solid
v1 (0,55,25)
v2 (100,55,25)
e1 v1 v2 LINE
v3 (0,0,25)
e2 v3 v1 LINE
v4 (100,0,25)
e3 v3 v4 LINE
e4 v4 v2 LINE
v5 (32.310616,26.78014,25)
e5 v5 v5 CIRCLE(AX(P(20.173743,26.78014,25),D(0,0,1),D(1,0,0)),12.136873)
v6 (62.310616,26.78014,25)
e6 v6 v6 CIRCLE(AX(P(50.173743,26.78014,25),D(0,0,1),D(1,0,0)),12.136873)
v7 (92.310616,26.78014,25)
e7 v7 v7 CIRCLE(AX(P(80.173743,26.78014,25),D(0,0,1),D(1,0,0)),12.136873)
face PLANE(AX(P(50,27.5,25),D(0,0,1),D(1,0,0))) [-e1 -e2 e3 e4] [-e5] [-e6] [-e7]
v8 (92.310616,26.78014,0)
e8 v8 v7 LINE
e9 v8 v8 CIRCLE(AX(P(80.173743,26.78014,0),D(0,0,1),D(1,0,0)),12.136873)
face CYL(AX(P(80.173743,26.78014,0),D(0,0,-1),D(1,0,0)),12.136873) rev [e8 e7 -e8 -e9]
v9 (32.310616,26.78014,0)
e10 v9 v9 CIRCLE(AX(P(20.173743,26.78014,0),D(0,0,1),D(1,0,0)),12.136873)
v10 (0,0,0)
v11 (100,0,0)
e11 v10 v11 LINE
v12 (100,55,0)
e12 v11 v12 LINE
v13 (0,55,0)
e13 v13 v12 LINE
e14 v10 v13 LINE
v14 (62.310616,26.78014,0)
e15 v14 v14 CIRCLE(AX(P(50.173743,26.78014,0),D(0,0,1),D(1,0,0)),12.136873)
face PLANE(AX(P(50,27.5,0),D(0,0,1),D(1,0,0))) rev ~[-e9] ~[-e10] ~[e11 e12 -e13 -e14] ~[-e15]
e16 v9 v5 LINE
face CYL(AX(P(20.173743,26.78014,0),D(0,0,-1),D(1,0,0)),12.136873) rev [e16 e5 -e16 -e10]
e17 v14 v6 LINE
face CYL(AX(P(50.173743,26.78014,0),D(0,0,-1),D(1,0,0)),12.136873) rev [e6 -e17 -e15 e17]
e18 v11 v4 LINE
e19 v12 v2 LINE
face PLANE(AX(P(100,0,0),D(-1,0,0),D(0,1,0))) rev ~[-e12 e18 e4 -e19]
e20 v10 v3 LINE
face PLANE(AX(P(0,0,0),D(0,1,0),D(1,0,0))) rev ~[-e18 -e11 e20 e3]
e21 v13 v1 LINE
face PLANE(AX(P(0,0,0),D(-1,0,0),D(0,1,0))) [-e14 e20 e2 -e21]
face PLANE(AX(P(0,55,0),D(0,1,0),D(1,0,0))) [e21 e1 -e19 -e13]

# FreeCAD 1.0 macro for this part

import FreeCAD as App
import Part
import Sketcher
from FreeCAD import Vector


def add_polygon(sketch, points):
    """Adds a closed chain of lines whose ends are joined by coincident constraints."""
    first, n = sketch.GeometryCount, len(points)
    for a, b in zip(points, points[1:] + points[:1]):
        sketch.addGeometry(Part.LineSegment(App.Vector(*a, 0), App.Vector(*b, 0)), False)
    for i in range(n):
        sketch.addConstraint(Sketcher.Constraint("Coincident", first + i, 2, first + (i + 1) % n, 1))

doc = App.newDocument("Part")
body = doc.addObject("PartDesign::Body", "Body")

# Sketch on XY plane
sketch1 = body.newObject("Sketcher::SketchObject", "Sketch")
sketch1.AttachmentSupport = (doc.getObject("XY_Plane"), [""])
sketch1.MapMode = "FlatFace"
add_polygon(sketch1, [(0, 55), (0, 0), (100, 0), (100, 55)])  # lines 0-3
sketch1.addConstraint(Sketcher.Constraint("Vertical", 0))
sketch1.addConstraint(Sketcher.Constraint("Horizontal", 1))
sketch1.addConstraint(Sketcher.Constraint("Vertical", 2))
sketch1.addConstraint(Sketcher.Constraint("Horizontal", 3))
sketch1.addConstraint(Sketcher.Constraint("Coincident", 0, 2, -1, 1))
sketch1.addConstraint(Sketcher.Constraint("DistanceX", 1, 1, 1, 2, 100.0))
sketch1.addConstraint(Sketcher.Constraint("DistanceY", 0, 2, 0, 1, 55.0))
pad1 = body.newObject("PartDesign::Pad", "Pad")
pad1.Profile = sketch1
pad1.Length = 25

# Sketch on XY plane
sketch2 = body.newObject("Sketcher::SketchObject", "Sketch001")
sketch2.AttachmentSupport = (doc.getObject("XY_Plane"), [""])
sketch2.MapMode = "FlatFace"
sketch2.addGeometry(Part.Circle(Vector(80.173743, 26.78014, 0), Vector(0, 0, 1), 12.136873), False)
sketch2.addGeometry(Part.Circle(Vector(50.173743, 26.78014, 0), Vector(0, 0, 1), 12.136873), False)
sketch2.addGeometry(Part.Circle(Vector(20.173743, 26.78014, 0), Vector(0, 0, 1), 12.136873), False)
sketch2.addConstraint(Sketcher.Constraint("Equal", 0, 1))
sketch2.addConstraint(Sketcher.Constraint("Equal", 1, 2))
sketch2.addConstraint(Sketcher.Constraint("Horizontal", 0, 3, 1, 3))
sketch2.addConstraint(Sketcher.Constraint("Horizontal", 1, 3, 2, 3))
sketch2.addConstraint(Sketcher.Constraint("DistanceX", 1, 3, 0, 3, 30.0))
sketch2.addConstraint(Sketcher.Constraint("DistanceX", 2, 3, 1, 3, 30.0))
sketch2.addConstraint(Sketcher.Constraint("Diameter", 0, 24.273746))
sketch2.addConstraint(Sketcher.Constraint("DistanceY", -1, 1, 0, 3, 26.78014))
sketch2.addConstraint(Sketcher.Constraint("DistanceX", -1, 1, 0, 3, 80.173743))
pocket1 = body.newObject("PartDesign::Pocket", "Pocket")
pocket1.Profile = sketch2
pocket1.Length = 25
pocket1.Reversed = True

doc.recompute()
